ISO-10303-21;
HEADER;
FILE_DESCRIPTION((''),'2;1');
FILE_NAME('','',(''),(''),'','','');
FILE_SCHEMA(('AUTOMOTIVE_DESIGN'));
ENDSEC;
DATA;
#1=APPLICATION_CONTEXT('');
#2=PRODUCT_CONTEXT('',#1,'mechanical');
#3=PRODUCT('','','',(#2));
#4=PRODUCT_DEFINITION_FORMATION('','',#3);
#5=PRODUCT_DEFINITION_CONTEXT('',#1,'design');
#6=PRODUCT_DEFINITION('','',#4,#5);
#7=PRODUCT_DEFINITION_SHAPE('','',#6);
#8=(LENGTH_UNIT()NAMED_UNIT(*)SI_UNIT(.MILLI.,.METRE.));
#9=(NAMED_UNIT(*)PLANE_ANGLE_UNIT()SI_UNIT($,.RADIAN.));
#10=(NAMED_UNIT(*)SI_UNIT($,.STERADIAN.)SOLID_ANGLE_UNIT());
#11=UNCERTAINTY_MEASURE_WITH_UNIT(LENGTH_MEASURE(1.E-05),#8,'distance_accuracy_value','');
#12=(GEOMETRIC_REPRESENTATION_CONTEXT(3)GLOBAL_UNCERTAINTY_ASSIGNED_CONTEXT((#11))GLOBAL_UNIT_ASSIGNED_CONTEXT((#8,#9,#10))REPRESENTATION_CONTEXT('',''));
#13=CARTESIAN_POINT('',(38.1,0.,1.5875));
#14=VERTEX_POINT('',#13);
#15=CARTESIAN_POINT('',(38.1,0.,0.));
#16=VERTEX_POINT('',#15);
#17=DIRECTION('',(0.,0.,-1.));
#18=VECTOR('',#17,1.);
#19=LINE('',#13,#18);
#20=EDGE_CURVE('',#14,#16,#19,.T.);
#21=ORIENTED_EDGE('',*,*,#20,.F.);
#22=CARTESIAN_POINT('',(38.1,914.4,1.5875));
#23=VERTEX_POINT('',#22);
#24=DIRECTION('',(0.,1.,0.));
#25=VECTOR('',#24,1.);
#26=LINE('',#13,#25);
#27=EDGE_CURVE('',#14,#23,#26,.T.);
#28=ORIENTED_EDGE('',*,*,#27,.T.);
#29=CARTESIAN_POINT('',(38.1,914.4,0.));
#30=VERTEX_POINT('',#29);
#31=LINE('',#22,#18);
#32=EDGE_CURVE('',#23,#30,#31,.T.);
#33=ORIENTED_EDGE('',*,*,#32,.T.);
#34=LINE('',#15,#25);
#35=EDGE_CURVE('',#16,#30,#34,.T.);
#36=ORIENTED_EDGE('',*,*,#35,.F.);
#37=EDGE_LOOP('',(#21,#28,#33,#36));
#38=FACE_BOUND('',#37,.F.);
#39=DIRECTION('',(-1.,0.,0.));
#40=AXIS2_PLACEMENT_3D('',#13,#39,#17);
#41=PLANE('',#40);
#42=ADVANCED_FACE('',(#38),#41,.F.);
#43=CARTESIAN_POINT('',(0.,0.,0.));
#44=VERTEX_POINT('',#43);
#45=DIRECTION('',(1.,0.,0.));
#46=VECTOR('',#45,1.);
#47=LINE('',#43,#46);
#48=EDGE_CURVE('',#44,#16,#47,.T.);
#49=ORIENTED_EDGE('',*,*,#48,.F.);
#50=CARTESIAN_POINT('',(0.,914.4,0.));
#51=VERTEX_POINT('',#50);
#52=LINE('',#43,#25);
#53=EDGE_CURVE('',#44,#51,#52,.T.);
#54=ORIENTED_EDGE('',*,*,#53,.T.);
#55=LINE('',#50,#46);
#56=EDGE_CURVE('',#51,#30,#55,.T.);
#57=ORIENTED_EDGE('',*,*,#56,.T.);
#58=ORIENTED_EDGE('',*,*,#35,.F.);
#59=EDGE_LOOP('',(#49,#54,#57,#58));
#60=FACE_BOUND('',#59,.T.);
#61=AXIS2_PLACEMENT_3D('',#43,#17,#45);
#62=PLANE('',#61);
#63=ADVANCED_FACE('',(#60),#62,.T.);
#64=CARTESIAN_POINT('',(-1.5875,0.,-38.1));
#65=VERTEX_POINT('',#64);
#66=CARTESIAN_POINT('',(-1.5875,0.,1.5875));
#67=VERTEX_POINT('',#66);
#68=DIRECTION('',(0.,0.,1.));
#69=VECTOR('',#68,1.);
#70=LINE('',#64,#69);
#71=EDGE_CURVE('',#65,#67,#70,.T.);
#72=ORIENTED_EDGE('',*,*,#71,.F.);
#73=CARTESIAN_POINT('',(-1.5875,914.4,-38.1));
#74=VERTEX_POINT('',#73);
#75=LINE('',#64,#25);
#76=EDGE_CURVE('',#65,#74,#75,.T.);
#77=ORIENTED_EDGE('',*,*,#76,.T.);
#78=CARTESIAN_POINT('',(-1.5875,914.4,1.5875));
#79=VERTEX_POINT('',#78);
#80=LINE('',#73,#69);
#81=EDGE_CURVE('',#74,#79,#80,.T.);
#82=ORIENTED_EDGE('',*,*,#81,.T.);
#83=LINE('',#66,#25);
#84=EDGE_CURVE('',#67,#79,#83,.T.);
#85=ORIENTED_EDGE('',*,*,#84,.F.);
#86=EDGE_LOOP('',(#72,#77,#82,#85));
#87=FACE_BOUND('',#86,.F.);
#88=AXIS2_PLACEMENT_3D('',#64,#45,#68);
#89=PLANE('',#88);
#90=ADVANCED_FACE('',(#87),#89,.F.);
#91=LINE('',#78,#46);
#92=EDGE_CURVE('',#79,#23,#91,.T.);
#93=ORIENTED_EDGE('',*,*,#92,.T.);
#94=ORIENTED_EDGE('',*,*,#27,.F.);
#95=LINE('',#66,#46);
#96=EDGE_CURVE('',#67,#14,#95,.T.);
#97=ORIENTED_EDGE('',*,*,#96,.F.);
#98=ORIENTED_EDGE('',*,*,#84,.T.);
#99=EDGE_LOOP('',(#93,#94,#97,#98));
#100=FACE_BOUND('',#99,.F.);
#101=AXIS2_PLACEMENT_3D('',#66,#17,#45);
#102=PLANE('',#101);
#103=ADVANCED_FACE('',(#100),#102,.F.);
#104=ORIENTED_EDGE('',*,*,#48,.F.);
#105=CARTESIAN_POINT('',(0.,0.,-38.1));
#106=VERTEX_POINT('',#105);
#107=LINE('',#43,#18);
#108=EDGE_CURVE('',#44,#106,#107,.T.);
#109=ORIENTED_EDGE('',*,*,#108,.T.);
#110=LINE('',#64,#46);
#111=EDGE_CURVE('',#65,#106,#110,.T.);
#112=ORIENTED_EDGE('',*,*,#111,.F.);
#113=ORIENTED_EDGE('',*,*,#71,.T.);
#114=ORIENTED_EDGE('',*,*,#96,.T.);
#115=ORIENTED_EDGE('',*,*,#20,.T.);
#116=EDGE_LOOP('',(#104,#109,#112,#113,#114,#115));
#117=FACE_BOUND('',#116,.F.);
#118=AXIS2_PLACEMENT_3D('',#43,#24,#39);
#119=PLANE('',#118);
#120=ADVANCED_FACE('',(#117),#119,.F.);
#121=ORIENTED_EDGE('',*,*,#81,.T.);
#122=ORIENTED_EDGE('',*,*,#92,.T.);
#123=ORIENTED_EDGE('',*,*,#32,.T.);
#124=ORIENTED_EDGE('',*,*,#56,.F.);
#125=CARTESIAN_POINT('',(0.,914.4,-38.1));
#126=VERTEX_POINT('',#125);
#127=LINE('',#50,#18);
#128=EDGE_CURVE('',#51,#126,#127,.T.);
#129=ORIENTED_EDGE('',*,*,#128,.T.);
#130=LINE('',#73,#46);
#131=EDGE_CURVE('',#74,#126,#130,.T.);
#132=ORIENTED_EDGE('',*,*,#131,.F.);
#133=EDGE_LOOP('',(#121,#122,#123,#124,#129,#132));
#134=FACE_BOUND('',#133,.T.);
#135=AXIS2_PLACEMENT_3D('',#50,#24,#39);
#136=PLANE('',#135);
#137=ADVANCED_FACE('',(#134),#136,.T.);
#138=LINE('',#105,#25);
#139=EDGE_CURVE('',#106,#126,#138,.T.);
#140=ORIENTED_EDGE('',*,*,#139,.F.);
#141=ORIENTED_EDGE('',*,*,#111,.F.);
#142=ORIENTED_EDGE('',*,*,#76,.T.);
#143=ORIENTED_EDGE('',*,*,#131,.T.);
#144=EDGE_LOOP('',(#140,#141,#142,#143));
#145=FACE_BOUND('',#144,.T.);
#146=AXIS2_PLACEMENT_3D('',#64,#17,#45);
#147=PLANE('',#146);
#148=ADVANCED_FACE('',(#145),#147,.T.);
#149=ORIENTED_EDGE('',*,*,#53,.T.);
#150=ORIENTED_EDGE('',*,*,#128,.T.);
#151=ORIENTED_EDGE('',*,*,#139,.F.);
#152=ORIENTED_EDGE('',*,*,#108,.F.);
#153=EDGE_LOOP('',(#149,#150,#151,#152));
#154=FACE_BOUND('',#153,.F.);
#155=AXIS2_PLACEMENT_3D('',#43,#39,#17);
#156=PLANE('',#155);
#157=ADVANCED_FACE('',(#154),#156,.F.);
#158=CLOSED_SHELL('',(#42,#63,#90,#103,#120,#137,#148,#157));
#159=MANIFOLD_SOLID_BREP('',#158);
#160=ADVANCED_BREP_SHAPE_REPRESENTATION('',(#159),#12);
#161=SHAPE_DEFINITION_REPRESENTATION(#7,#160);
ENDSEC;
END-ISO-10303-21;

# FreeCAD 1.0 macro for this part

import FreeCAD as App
import Part
import Sketcher

V = App.Vector
Q = App.Units.Quantity


def add_polygon(sketch, points):
    """Adds a closed chain of lines whose ends are joined by coincident constraints."""
    first, n = sketch.GeometryCount, len(points)
    for a, b in zip(points, points[1:] + points[:1]):
        sketch.addGeometry(Part.LineSegment(App.Vector(*a, 0), App.Vector(*b, 0)), False)
    for i in range(n):
        sketch.addConstraint(Sketcher.Constraint("Coincident", first + i, 2, first + (i + 1) % n, 1))

doc = App.newDocument("Part")
params = doc.addObject("Spreadsheet::Sheet", "Params")
for row, (alias, value) in enumerate([
    ("sketch1_width", "1.5 in"),
    ("sketch1_width2", "0.0625 in"),
    ("pad1_length", "36 in"),
], start=1):
    params.set(f"A{row}", alias)
    params.set(f"B{row}", "=" + value)
    params.setAlias(f"B{row}", alias)

body = doc.addObject("PartDesign::Body", "Body")

# Sketch on XZ plane
sketch1 = doc.addObject("Sketcher::SketchObject", "Sketch")
body.addObject(sketch1)
sketch1.AttachmentSupport = (doc.XZ_Plane, [""])
sketch1.MapMode = "FlatFace"
add_polygon(sketch1, [(38.1, 0), (0, 0), (0, -38.1), (-1.6, -38.1), (-1.6, 1.6), (38.1, 1.6)])  # lines 0-5
sketch1.addConstraint([
    Sketcher.Constraint("Horizontal", 0),
    Sketcher.Constraint("Vertical", 1),
    Sketcher.Constraint("Horizontal", 2),
    Sketcher.Constraint("Vertical", 3),
    Sketcher.Constraint("Horizontal", 4),
    Sketcher.Constraint("Vertical", 5),
    Sketcher.Constraint("Coincident", 0, 2, -1, 1),
    Sketcher.Constraint("Equal", 0, 1),
    Sketcher.Constraint("Equal", 4, 3),
    Sketcher.Constraint("DistanceX", 0, 2, 0, 1, Q("1.5 in")),
    Sketcher.Constraint("DistanceX", 2, 2, 2, 1, Q("0.0625 in")),
])
sketch1.setExpression("Constraints[15]", "Params.sketch1_width")
sketch1.setExpression("Constraints[16]", "Params.sketch1_width2")
pad1 = doc.addObject("PartDesign::Pad", "Pad")
body.addObject(pad1)
pad1.Profile = sketch1
pad1.setExpression("Length", "Params.pad1_length")
pad1.Reversed = True

doc.recompute()
